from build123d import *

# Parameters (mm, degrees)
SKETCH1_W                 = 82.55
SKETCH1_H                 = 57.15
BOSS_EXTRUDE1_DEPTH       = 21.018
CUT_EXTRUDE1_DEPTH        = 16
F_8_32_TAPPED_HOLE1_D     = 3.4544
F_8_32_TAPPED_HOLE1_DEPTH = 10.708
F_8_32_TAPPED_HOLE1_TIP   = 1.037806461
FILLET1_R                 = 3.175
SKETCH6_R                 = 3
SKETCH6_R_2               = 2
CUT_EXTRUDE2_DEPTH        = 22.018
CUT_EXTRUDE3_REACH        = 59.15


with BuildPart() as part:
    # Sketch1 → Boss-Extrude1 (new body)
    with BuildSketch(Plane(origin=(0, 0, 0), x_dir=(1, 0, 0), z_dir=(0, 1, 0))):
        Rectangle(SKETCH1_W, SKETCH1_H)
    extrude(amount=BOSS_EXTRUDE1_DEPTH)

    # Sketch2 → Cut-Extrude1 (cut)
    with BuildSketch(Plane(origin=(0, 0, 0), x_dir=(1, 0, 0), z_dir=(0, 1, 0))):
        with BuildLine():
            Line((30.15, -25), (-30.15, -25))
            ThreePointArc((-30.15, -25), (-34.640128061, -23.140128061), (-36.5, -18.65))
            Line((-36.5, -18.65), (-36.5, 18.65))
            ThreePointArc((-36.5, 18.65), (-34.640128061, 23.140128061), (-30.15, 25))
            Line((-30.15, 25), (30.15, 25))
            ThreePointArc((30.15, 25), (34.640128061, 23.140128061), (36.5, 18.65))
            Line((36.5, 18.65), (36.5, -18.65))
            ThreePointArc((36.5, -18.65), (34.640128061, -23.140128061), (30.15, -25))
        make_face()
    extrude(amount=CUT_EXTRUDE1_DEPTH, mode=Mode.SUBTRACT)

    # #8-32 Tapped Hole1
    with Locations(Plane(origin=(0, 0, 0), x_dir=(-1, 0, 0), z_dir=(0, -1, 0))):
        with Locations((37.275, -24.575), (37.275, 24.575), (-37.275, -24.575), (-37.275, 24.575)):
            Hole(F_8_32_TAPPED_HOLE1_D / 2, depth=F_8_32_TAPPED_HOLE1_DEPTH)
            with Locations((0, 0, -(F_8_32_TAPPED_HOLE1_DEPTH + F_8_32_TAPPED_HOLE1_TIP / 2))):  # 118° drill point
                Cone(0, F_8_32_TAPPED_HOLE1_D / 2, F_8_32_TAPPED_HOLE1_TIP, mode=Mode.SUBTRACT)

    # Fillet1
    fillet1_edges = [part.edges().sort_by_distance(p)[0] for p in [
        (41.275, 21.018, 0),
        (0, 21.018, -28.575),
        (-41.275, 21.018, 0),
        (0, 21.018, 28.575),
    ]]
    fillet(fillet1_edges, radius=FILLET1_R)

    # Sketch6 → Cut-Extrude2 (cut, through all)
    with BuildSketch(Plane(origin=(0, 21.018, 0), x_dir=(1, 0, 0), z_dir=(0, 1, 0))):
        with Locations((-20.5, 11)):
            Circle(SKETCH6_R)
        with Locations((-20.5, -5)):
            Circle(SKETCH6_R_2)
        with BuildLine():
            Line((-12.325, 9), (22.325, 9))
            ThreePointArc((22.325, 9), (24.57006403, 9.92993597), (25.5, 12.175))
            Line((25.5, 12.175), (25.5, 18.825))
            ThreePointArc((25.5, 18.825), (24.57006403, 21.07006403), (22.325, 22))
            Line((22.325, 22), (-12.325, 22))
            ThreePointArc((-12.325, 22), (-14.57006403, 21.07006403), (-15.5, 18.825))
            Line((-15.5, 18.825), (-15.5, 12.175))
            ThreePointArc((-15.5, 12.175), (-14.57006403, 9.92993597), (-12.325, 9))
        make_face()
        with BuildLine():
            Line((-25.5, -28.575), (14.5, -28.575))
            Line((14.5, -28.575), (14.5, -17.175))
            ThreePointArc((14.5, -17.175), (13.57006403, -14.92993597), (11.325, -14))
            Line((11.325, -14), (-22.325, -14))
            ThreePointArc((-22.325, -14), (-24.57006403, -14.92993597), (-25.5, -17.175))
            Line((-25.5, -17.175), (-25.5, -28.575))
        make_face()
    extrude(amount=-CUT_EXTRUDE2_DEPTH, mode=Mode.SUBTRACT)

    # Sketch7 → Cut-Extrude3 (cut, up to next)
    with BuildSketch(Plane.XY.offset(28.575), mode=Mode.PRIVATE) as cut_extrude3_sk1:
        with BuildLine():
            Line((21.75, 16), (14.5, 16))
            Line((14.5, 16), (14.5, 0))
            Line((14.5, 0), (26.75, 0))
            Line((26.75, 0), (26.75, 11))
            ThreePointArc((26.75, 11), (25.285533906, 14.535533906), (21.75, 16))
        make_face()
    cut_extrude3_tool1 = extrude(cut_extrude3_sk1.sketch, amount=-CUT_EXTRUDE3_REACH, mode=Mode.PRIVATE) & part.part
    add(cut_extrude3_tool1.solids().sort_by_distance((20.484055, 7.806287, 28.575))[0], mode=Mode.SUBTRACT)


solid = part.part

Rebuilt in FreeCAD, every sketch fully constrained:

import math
import FreeCAD as App
import Part
import Sketcher
from FreeCAD import Vector


def edges_at(feature, points):
    """Names of the edges that pass closest to the given points."""
    edges = feature.Shape.Edges
    near = lambda p: min(range(len(edges)), key=lambda i: edges[i].distToShape(Part.Vertex(*p))[0])
    return sorted({f"Edge{near(p) + 1}" for p in points})

doc = App.newDocument("Part")
body = doc.addObject("PartDesign::Body", "Body")

# Sketch on XZ plane
sketch1 = body.newObject("Sketcher::SketchObject", "Sketch")
sketch1.AttachmentSupport = (doc.getObject("XZ_Plane"), [""])
sketch1.MapMode = "FlatFace"
sketch1.addGeometry(Part.LineSegment(Vector(-41, -29, 0), Vector(-41, 29, 0)), False)
sketch1.addGeometry(Part.LineSegment(Vector(-41, 29, 0), Vector(41, 29, 0)), False)
sketch1.addGeometry(Part.LineSegment(Vector(41, 29, 0), Vector(41, -29, 0)), False)
sketch1.addGeometry(Part.LineSegment(Vector(41, -29, 0), Vector(-41, -29, 0)), False)
sketch1.addConstraint(Sketcher.Constraint("Coincident", 0, 2, 1, 1))
sketch1.addConstraint(Sketcher.Constraint("Coincident", 1, 2, 2, 1))
sketch1.addConstraint(Sketcher.Constraint("Coincident", 2, 2, 3, 1))
sketch1.addConstraint(Sketcher.Constraint("Coincident", 3, 2, 0, 1))
sketch1.addConstraint(Sketcher.Constraint("Vertical", 0))
sketch1.addConstraint(Sketcher.Constraint("Horizontal", 1))
sketch1.addConstraint(Sketcher.Constraint("Vertical", 2))
sketch1.addConstraint(Sketcher.Constraint("Horizontal", 3))
sketch1.addConstraint(Sketcher.Constraint("Symmetric", 0, 2, 2, 2, -1, 1))
sketch1.addConstraint(Sketcher.Constraint("DistanceX", 1, 1, 1, 2, 82.55))
sketch1.addConstraint(Sketcher.Constraint("DistanceY", 0, 1, 0, 2, 57.15))
pad1 = body.newObject("PartDesign::Pad", "Pad")
pad1.Profile = sketch1
pad1.Length = 21.018
pad1.Reversed = True

# Sketch on XZ plane
sketch2 = body.newObject("Sketcher::SketchObject", "Sketch001")
sketch2.AttachmentSupport = (doc.getObject("XZ_Plane"), [""])
sketch2.MapMode = "FlatFace"
sketch2.addGeometry(Part.LineSegment(Vector(-30, 25, 0), Vector(30, 25, 0)), False)
sketch2.addGeometry(Part.ArcOfCircle(Part.Circle(Vector(30, 19, 0), Vector(0, 0, 1), 6), math.radians(0), math.radians(90)), False)
sketch2.addGeometry(Part.LineSegment(Vector(36, 19, 0), Vector(36, -19, 0)), False)
sketch2.addGeometry(Part.ArcOfCircle(Part.Circle(Vector(30, -19, 0), Vector(0, 0, 1), 6), math.radians(-90), math.radians(0)), False)
sketch2.addGeometry(Part.LineSegment(Vector(30, -25, 0), Vector(-30, -25, 0)), False)
sketch2.addGeometry(Part.ArcOfCircle(Part.Circle(Vector(-30, -19, 0), Vector(0, 0, 1), 6), math.radians(180), math.radians(270)), False)
sketch2.addGeometry(Part.LineSegment(Vector(-36, -19, 0), Vector(-36, 19, 0)), False)
sketch2.addGeometry(Part.ArcOfCircle(Part.Circle(Vector(-30, 19, 0), Vector(0, 0, 1), 6), math.radians(90), math.radians(180)), False)
sketch2.addConstraint(Sketcher.Constraint("Tangent", 0, 2, 1, 2))
sketch2.addConstraint(Sketcher.Constraint("Tangent", 1, 1, 2, 1))
sketch2.addConstraint(Sketcher.Constraint("Tangent", 2, 2, 3, 2))
sketch2.addConstraint(Sketcher.Constraint("Tangent", 3, 1, 4, 1))
sketch2.addConstraint(Sketcher.Constraint("Tangent", 4, 2, 5, 2))
sketch2.addConstraint(Sketcher.Constraint("Tangent", 5, 1, 6, 1))
sketch2.addConstraint(Sketcher.Constraint("Tangent", 6, 2, 7, 2))
sketch2.addConstraint(Sketcher.Constraint("Tangent", 7, 1, 0, 1))
sketch2.addConstraint(Sketcher.Constraint("Horizontal", 0))
sketch2.addConstraint(Sketcher.Constraint("Vertical", 2))
sketch2.addConstraint(Sketcher.Constraint("Horizontal", 4))
sketch2.addConstraint(Sketcher.Constraint("Vertical", 6))
sketch2.addConstraint(Sketcher.Constraint("Equal", 1, 3))
sketch2.addConstraint(Sketcher.Constraint("Equal", 3, 5))
sketch2.addConstraint(Sketcher.Constraint("Equal", 5, 7))
sketch2.addConstraint(Sketcher.Constraint("Symmetric", 1, 3, 5, 3, -1, 1))
sketch2.addConstraint(Sketcher.Constraint("Radius", 1, 6.35))
sketch2.addConstraint(Sketcher.Constraint("DistanceX", 0, 1, 0, 2, 60.3))
sketch2.addConstraint(Sketcher.Constraint("DistanceY", 2, 2, 2, 1, 37.3))
pocket1 = body.newObject("PartDesign::Pocket", "Pocket")
pocket1.Profile = sketch2
pocket1.Length = 16

# Sketch on XZ plane
sketch3 = body.newObject("Sketcher::SketchObject", "Sketch002")
sketch3.AttachmentSupport = (doc.getObject("XZ_Plane"), [""])
sketch3.MapMode = "FlatFace"
sketch3.addGeometry(Part.Circle(Vector(-37.3, 24.6, 0), Vector(0, 0, 1), 1.7), False)
sketch3.addGeometry(Part.Circle(Vector(-37.3, -24.6, 0), Vector(0, 0, 1), 1.7), False)
sketch3.addGeometry(Part.Circle(Vector(37.3, 24.6, 0), Vector(0, 0, 1), 1.7), False)
sketch3.addGeometry(Part.Circle(Vector(37.3, -24.6, 0), Vector(0, 0, 1), 1.7), False)
sketch3.addConstraint(Sketcher.Constraint("Equal", 0, 1))
sketch3.addConstraint(Sketcher.Constraint("Equal", 1, 2))
sketch3.addConstraint(Sketcher.Constraint("Equal", 2, 3))
sketch3.addConstraint(Sketcher.Constraint("Symmetric", 1, 3, 2, 3, -1, 1))
sketch3.addConstraint(Sketcher.Constraint("Symmetric", 0, 3, 3, 3, -1, 1))
sketch3.addConstraint(Sketcher.Constraint("Symmetric", 0, 3, 2, 3, -2))
sketch3.addConstraint(Sketcher.Constraint("Diameter", 0, 3.4544))
sketch3.addConstraint(Sketcher.Constraint("DistanceY", 1, 3, 0, 3, 49.15))
sketch3.addConstraint(Sketcher.Constraint("DistanceX", 0, 3, 2, 3, 74.55))
doc.recompute()
hole = body.newObject("PartDesign::Hole", "Hole")
hole.Profile = sketch3
hole.ThreadType = "None"
hole.Diameter = 3.4544
hole.DepthType = "Dimension"
hole.Depth = 10.708
hole.DrillPoint = "Angled"
hole.DrillPointAngle = 118
doc.recompute()

fillet = body.newObject("PartDesign::Fillet", "Fillet")
fillet.Base = (hole, edges_at(hole, [
    (41.275, 21.018, 0),
    (0, 21.018, -28.575),
    (-41.275, 21.018, 0),
    (0, 21.018, 28.575),
]))
fillet.Radius = 3.175

# Sketch on XZ plane
sketch4 = body.newObject("Sketcher::SketchObject", "Sketch003")
sketch4.AttachmentSupport = (doc.getObject("XZ_Plane"), [""])
sketch4.MapMode = "FlatFace"
sketch4.AttachmentOffset = App.Placement(Vector(0, 0, -21.018), App.Rotation())
sketch4.addGeometry(Part.Circle(Vector(-20.5, -11, 0), Vector(0, 0, 1), 3), False)
sketch4.addGeometry(Part.Circle(Vector(-20.5, 5, 0), Vector(0, 0, 1), 2), False)
sketch4.addGeometry(Part.LineSegment(Vector(-12.3, -9, 0), Vector(22.3, -9, 0)), False)
sketch4.addGeometry(Part.ArcOfCircle(Part.Circle(Vector(22.3, -12.2, 0), Vector(0, 0, 1), 3.2), math.radians(0), math.radians(90)), False)
sketch4.addGeometry(Part.LineSegment(Vector(25.5, -12.2, 0), Vector(25.5, -18.8, 0)), False)
sketch4.addGeometry(Part.ArcOfCircle(Part.Circle(Vector(22.3, -18.8, 0), Vector(0, 0, 1), 3.2), math.radians(-90), math.radians(0)), False)
sketch4.addGeometry(Part.LineSegment(Vector(22.3, -22, 0), Vector(-12.3, -22, 0)), False)
sketch4.addGeometry(Part.ArcOfCircle(Part.Circle(Vector(-12.3, -18.8, 0), Vector(0, 0, 1), 3.2), math.radians(-180), math.radians(-90)), False)
sketch4.addGeometry(Part.LineSegment(Vector(-15.5, -18.8, 0), Vector(-15.5, -12.2, 0)), False)
sketch4.addGeometry(Part.ArcOfCircle(Part.Circle(Vector(-12.3, -12.2, 0), Vector(0, 0, 1), 3.2), math.radians(90), math.radians(180)), False)
sketch4.addGeometry(Part.LineSegment(Vector(-25.5, 28.6, 0), Vector(14.5, 28.6, 0)), False)
sketch4.addGeometry(Part.LineSegment(Vector(14.5, 28.6, 0), Vector(14.5, 17.2, 0)), False)
sketch4.addGeometry(Part.ArcOfCircle(Part.Circle(Vector(11.3, 17.2, 0), Vector(0, 0, 1), 3.2), math.radians(-90), math.radians(0)), False)
sketch4.addGeometry(Part.LineSegment(Vector(11.3, 14, 0), Vector(-22.3, 14, 0)), False)
sketch4.addGeometry(Part.ArcOfCircle(Part.Circle(Vector(-22.3, 17.2, 0), Vector(0, 0, 1), 3.2), math.radians(-180), math.radians(-90)), False)
sketch4.addGeometry(Part.LineSegment(Vector(-25.5, 17.2, 0), Vector(-25.5, 28.6, 0)), False)
sketch4.addConstraint(Sketcher.Constraint("Tangent", 2, 2, 3, 2))
sketch4.addConstraint(Sketcher.Constraint("Tangent", 3, 1, 4, 1))
sketch4.addConstraint(Sketcher.Constraint("Tangent", 4, 2, 5, 2))
sketch4.addConstraint(Sketcher.Constraint("Tangent", 5, 1, 6, 1))
sketch4.addConstraint(Sketcher.Constraint("Tangent", 6, 2, 7, 2))
sketch4.addConstraint(Sketcher.Constraint("Tangent", 7, 1, 8, 1))
sketch4.addConstraint(Sketcher.Constraint("Tangent", 8, 2, 9, 2))
sketch4.addConstraint(Sketcher.Constraint("Tangent", 9, 1, 2, 1))
sketch4.addConstraint(Sketcher.Constraint("Coincident", 10, 2, 11, 1))
sketch4.addConstraint(Sketcher.Constraint("Tangent", 11, 2, 12, 2))
sketch4.addConstraint(Sketcher.Constraint("Tangent", 12, 1, 13, 1))
sketch4.addConstraint(Sketcher.Constraint("Tangent", 13, 2, 14, 2))
sketch4.addConstraint(Sketcher.Constraint("Tangent", 14, 1, 15, 1))
sketch4.addConstraint(Sketcher.Constraint("Coincident", 15, 2, 10, 1))
sketch4.addConstraint(Sketcher.Constraint("Horizontal", 2))
sketch4.addConstraint(Sketcher.Constraint("Vertical", 4))
sketch4.addConstraint(Sketcher.Constraint("Horizontal", 6))
sketch4.addConstraint(Sketcher.Constraint("Vertical", 8))
sketch4.addConstraint(Sketcher.Constraint("Horizontal", 10))
sketch4.addConstraint(Sketcher.Constraint("Vertical", 11))
sketch4.addConstraint(Sketcher.Constraint("Horizontal", 13))
sketch4.addConstraint(Sketcher.Constraint("Vertical", 15))
sketch4.addConstraint(Sketcher.Constraint("Equal", 3, 5))
sketch4.addConstraint(Sketcher.Constraint("Equal", 5, 7))
sketch4.addConstraint(Sketcher.Constraint("Equal", 7, 9))
sketch4.addConstraint(Sketcher.Constraint("Equal", 9, 12))
sketch4.addConstraint(Sketcher.Constraint("Equal", 12, 14))
sketch4.addConstraint(Sketcher.Constraint("Vertical", 0, 3, 1, 3))
sketch4.addConstraint(Sketcher.Constraint("Diameter", 0, 6.0))
sketch4.addConstraint(Sketcher.Constraint("Diameter", 1, 4.0))
sketch4.addConstraint(Sketcher.Constraint("DistanceX", 10, 1, 10, 2, 40.0))
sketch4.addConstraint(Sketcher.Constraint("DistanceY", 11, 2, 11, 1, 11.4))
sketch4.addConstraint(Sketcher.Constraint("DistanceY", 0, 3, -1, 1, 11.0))
sketch4.addConstraint(Sketcher.Constraint("DistanceY", -1, 1, 1, 3, 5.0))
sketch4.addConstraint(Sketcher.Constraint("DistanceY", 2, 2, -1, 1, 9.0))
sketch4.addConstraint(Sketcher.Constraint("DistanceY", 5, 1, -1, 1, 22.0))
sketch4.addConstraint(Sketcher.Constraint("DistanceY", -1, 1, 12, 1, 14.0))
sketch4.addConstraint(Sketcher.Constraint("Radius", 3, 3.175))
sketch4.addConstraint(Sketcher.Constraint("DistanceX", 12, 3, 3, 3, 11.0))
sketch4.addConstraint(Sketcher.Constraint("DistanceX", 14, 3, 9, 3, 10.0))
sketch4.addConstraint(Sketcher.Constraint("DistanceX", 0, 3, 7, 1, 5.0))
sketch4.addConstraint(Sketcher.Constraint("DistanceX", 0, 3, -1, 1, 20.5))
pocket2 = body.newObject("PartDesign::Pocket", "Pocket001")
pocket2.Profile = sketch4
pocket2.Type = "ThroughAll"
pocket2.Reversed = True

# Sketch on XY plane
sketch5 = body.newObject("Sketcher::SketchObject", "Sketch004")
sketch5.AttachmentSupport = (doc.getObject("XY_Plane"), [""])
sketch5.MapMode = "FlatFace"
sketch5.AttachmentOffset = App.Placement(Vector(0, 0, 28.575), App.Rotation())
sketch5.addGeometry(Part.LineSegment(Vector(22, 16, 0), Vector(14, 16, 0)), False)
sketch5.addGeometry(Part.LineSegment(Vector(14, 16, 0), Vector(14, 0, 0)), False)
sketch5.addGeometry(Part.LineSegment(Vector(14, 0, 0), Vector(27, 0, 0)), False)
sketch5.addGeometry(Part.LineSegment(Vector(27, 0, 0), Vector(27, 11, 0)), False)
sketch5.addGeometry(Part.ArcOfCircle(Part.Circle(Vector(22, 11, 0), Vector(0, 0, 1), 5), math.radians(0), math.radians(90)), False)
sketch5.addConstraint(Sketcher.Constraint("Coincident", 0, 2, 1, 1))
sketch5.addConstraint(Sketcher.Constraint("Coincident", 1, 2, 2, 1))
sketch5.addConstraint(Sketcher.Constraint("Coincident", 2, 2, 3, 1))
sketch5.addConstraint(Sketcher.Constraint("Tangent", 3, 2, 4, 1))
sketch5.addConstraint(Sketcher.Constraint("Tangent", 4, 2, 0, 1))
sketch5.addConstraint(Sketcher.Constraint("Horizontal", 0))
sketch5.addConstraint(Sketcher.Constraint("Vertical", 1))
sketch5.addConstraint(Sketcher.Constraint("Horizontal", 2))
sketch5.addConstraint(Sketcher.Constraint("Vertical", 3))
sketch5.addConstraint(Sketcher.Constraint("PointOnObject", 1, 2, -1))
sketch5.addConstraint(Sketcher.Constraint("Radius", 4, 5.0))
sketch5.addConstraint(Sketcher.Constraint("DistanceY", 1, 2, 1, 1, 16.0))
sketch5.addConstraint(Sketcher.Constraint("DistanceX", 0, 2, 0, 1, 7.25))
sketch5.addConstraint(Sketcher.Constraint("DistanceX", -1, 1, 0, 2, 14.5))
pocket3 = body.newObject("PartDesign::Pocket", "Pocket002")
pocket3.Profile = sketch5
pocket3.Type = "UpToFirst"

doc.recompute()
